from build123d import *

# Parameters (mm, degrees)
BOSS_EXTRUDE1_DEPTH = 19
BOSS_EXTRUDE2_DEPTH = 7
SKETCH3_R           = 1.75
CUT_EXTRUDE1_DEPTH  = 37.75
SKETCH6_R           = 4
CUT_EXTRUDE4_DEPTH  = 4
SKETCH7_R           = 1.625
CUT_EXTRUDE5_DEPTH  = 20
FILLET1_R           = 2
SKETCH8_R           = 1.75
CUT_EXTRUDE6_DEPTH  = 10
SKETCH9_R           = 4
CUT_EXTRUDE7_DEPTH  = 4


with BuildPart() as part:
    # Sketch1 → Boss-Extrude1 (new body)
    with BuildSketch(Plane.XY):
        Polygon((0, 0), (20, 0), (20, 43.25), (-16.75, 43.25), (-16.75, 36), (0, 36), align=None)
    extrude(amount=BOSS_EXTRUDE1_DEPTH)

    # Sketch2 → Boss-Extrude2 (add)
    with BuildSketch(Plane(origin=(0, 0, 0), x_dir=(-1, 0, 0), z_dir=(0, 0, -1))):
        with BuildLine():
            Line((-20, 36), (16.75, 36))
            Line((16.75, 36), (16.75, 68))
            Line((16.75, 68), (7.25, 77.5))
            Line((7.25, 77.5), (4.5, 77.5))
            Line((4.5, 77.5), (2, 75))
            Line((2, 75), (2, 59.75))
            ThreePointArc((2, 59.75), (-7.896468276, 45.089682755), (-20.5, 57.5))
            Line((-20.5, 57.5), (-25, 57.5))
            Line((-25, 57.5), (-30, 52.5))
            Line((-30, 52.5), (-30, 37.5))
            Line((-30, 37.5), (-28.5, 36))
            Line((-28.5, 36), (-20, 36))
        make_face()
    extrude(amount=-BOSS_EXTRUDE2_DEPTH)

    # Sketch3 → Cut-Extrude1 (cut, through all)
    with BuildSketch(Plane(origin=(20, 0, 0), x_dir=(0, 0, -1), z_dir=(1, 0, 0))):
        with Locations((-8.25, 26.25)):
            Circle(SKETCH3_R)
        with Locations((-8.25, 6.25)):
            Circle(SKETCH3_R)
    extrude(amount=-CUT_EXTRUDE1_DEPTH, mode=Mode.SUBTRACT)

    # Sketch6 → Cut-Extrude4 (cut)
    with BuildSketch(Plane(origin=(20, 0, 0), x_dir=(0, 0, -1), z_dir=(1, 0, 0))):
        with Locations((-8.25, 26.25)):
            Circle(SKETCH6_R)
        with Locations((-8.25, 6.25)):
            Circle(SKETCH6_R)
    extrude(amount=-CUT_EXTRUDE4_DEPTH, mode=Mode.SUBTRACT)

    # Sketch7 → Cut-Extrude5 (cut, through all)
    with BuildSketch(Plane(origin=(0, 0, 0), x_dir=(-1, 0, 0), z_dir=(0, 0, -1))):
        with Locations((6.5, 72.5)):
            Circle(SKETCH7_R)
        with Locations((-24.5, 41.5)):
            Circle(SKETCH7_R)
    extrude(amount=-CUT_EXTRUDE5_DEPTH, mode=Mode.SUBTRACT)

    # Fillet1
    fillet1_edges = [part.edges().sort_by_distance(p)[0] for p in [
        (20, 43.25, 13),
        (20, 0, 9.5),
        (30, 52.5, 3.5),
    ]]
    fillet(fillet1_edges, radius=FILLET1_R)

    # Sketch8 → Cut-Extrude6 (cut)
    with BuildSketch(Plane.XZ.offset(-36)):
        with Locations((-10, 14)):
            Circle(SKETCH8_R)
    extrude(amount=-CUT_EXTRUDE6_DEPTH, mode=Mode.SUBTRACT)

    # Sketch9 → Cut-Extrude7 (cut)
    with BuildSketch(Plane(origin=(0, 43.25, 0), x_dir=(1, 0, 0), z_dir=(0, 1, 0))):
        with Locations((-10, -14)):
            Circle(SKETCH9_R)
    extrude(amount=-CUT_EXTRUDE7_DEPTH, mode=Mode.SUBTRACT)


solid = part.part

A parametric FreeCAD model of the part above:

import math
import FreeCAD as App
import Part
import Sketcher

V = App.Vector
Q = App.Units.Quantity


def edges_at(feature, points):
    """Names of the edges that pass closest to the given points."""
    edges = feature.Shape.Edges
    near = lambda p: min(range(len(edges)), key=lambda i: edges[i].distToShape(Part.Vertex(*p))[0])
    return sorted({f"Edge{near(p) + 1}" for p in points})

doc = App.newDocument("Part")
body = doc.addObject("PartDesign::Body", "Body")

# Sketch on XY plane
sketch1 = doc.addObject("Sketcher::SketchObject", "Sketch")
body.addObject(sketch1)
sketch1.AttachmentSupport = (doc.XY_Plane, [""])
sketch1.MapMode = "FlatFace"
sketch1.addGeometry([
    Part.LineSegment(V(0, 0, 0), V(20, 0, 0)),  # 0
    Part.LineSegment(V(20, 0, 0), V(20, 43, 0)),  # 1
    Part.LineSegment(V(20, 43, 0), V(-17, 43, 0)),  # 2
    Part.LineSegment(V(-17, 43, 0), V(-17, 36, 0)),  # 3
    Part.LineSegment(V(-17, 36, 0), V(0, 36, 0)),  # 4
    Part.LineSegment(V(0, 36, 0), V(0, 0, 0)),  # 5
], False)
sketch1.addConstraint([
    Sketcher.Constraint("Coincident", 0, 2, 1, 1),
    Sketcher.Constraint("Coincident", 1, 2, 2, 1),
    Sketcher.Constraint("Coincident", 2, 2, 3, 1),
    Sketcher.Constraint("Coincident", 3, 2, 4, 1),
    Sketcher.Constraint("Coincident", 4, 2, 5, 1),
    Sketcher.Constraint("Coincident", 5, 2, 0, 1),
    Sketcher.Constraint("Horizontal", 0),
    Sketcher.Constraint("Vertical", 1),
    Sketcher.Constraint("Horizontal", 2),
    Sketcher.Constraint("Vertical", 3),
    Sketcher.Constraint("Horizontal", 4),
    Sketcher.Constraint("Vertical", 5),
    Sketcher.Constraint("Coincident", 5, 2, -1, 1),
    Sketcher.Constraint("DistanceX", 0, 1, 0, 2, Q("20 mm")),
    Sketcher.Constraint("DistanceY", 5, 2, 5, 1, Q("36 mm")),
    Sketcher.Constraint("DistanceX", 2, 2, 2, 1, Q("36.75 mm")),
    Sketcher.Constraint("DistanceY", 1, 1, 1, 2, Q("43.25 mm")),
])
pad1 = doc.addObject("PartDesign::Pad", "Pad")
body.addObject(pad1)
pad1.Profile = sketch1
pad1.Length = 19

# Sketch on XY plane
sketch2 = doc.addObject("Sketcher::SketchObject", "Sketch001")
body.addObject(sketch2)
sketch2.AttachmentSupport = (doc.XY_Plane, [""])
sketch2.MapMode = "FlatFace"
sketch2.addGeometry([
    Part.LineSegment(V(-16.8, 36, 0), V(-16.8, 68, 0)),  # 0
    Part.LineSegment(V(-16.8, 68, 0), V(-7.2, 77.5, 0)),  # 1
    Part.LineSegment(V(-7.2, 77.5, 0), V(-4.5, 77.5, 0)),  # 2
    Part.LineSegment(V(-4.5, 77.5, 0), V(-2, 75, 0)),  # 3
    Part.LineSegment(V(-2, 75, 0), V(-2, 59.8, 0)),  # 4
    Part.ArcOfCircle(Part.Circle(V(9, 56.5, 0), V(0, 0, 1), 11.5), math.radians(164), math.radians(365)),  # 5
    Part.LineSegment(V(20.5, 57.5, 0), V(25, 57.5, 0)),  # 6
    Part.LineSegment(V(25, 57.5, 0), V(30, 52.5, 0)),  # 7
    Part.LineSegment(V(30, 52.5, 0), V(30, 37.5, 0)),  # 8
    Part.LineSegment(V(30, 37.5, 0), V(28.5, 36, 0)),  # 9
    Part.LineSegment(V(28.5, 36, 0), V(-16.8, 36, 0)),  # 10
], False)
sketch2.addConstraint([
    Sketcher.Constraint("Coincident", 0, 2, 1, 1),
    Sketcher.Constraint("Coincident", 1, 2, 2, 1),
    Sketcher.Constraint("Coincident", 2, 2, 3, 1),
    Sketcher.Constraint("Coincident", 3, 2, 4, 1),
    Sketcher.Constraint("Coincident", 4, 2, 5, 1),
    Sketcher.Constraint("Coincident", 5, 2, 6, 1),
    Sketcher.Constraint("Coincident", 6, 2, 7, 1),
    Sketcher.Constraint("Coincident", 7, 2, 8, 1),
    Sketcher.Constraint("Coincident", 8, 2, 9, 1),
    Sketcher.Constraint("Coincident", 9, 2, 10, 1),
    Sketcher.Constraint("Coincident", 10, 2, 0, 1),
    Sketcher.Constraint("Vertical", 0),
    Sketcher.Constraint("Horizontal", 2),
    Sketcher.Constraint("Vertical", 4),
    Sketcher.Constraint("Horizontal", 6),
    Sketcher.Constraint("Vertical", 8),
    Sketcher.Constraint("Horizontal", 10),
    Sketcher.Constraint("Perpendicular", 1, 3),
    Sketcher.Constraint("Parallel", 3, 7),
    Sketcher.Constraint("Perpendicular", 7, 9),
    Sketcher.Constraint("Radius", 5, Q("11.5 mm")),
    Sketcher.Constraint("DistanceY", 0, 1, 0, 2, Q("32 mm")),
    Sketcher.Constraint("DistanceY", 8, 2, 8, 1, Q("15 mm")),
    Sketcher.Constraint("Angle", 1, Q("45 deg")),
    Sketcher.Constraint("DistanceX", 6, 1, 6, 2, Q("4.5 mm")),
    Sketcher.Constraint("DistanceY", -1, 1, 0, 2, Q("68 mm")),
    Sketcher.Constraint("DistanceX", 3, 2, -1, 1, Q("2 mm")),
    Sketcher.Constraint("DistanceY", -1, 1, 3, 2, Q("75 mm")),
    Sketcher.Constraint("DistanceX", -1, 1, 6, 2, Q("25 mm")),
    Sketcher.Constraint("DistanceX", -1, 1, 7, 2, Q("30 mm")),
    Sketcher.Constraint("DistanceX", 2, 2, 5, 2, Q("25 mm")),
    Sketcher.Constraint("DistanceY", 5, 2, 2, 2, Q("20 mm")),
    Sketcher.Constraint("DistanceX", 2, 1, 2, 2, Q("2.75 mm")),
    Sketcher.Constraint("DistanceY", 4, 2, 4, 1, Q("15.25 mm")),
])
pad2 = doc.addObject("PartDesign::Pad", "Pad001")
body.addObject(pad2)
pad2.Profile = sketch2
pad2.Length = 7

# Sketch on YZ plane
sketch3 = doc.addObject("Sketcher::SketchObject", "Sketch002")
body.addObject(sketch3)
sketch3.AttachmentSupport = (doc.YZ_Plane, [""])
sketch3.MapMode = "FlatFace"
sketch3.AttachmentOffset = App.Placement(V(0, 0, 20), App.Rotation())
sketch3.addGeometry([
    Part.Circle(V(26.2, 8.2, 0), V(0, 0, 1), 1.8),
    Part.Circle(V(6.2, 8.2, 0), V(0, 0, 1), 1.8),
], False)
sketch3.addConstraint([
    Sketcher.Constraint("Equal", 0, 1),
    Sketcher.Constraint("Horizontal", 0, 3, 1, 3),
    Sketcher.Constraint("Diameter", 0, Q("3.5 mm")),
    Sketcher.Constraint("DistanceX", 1, 3, 0, 3, Q("20 mm")),
    Sketcher.Constraint("DistanceX", -1, 1, 0, 3, Q("26.25 mm")),
    Sketcher.Constraint("DistanceY", -1, 1, 0, 3, Q("8.25 mm")),
])
pocket1 = doc.addObject("PartDesign::Pocket", "Pocket")
body.addObject(pocket1)
pocket1.Profile = sketch3
pocket1.Type = "ThroughAll"

# Sketch on YZ plane
sketch4 = doc.addObject("Sketcher::SketchObject", "Sketch003")
body.addObject(sketch4)
sketch4.AttachmentSupport = (doc.YZ_Plane, [""])
sketch4.MapMode = "FlatFace"
sketch4.AttachmentOffset = App.Placement(V(0, 0, 20), App.Rotation())
sketch4.addGeometry([
    Part.Circle(V(26.2, 8.2, 0), V(0, 0, 1), 4),
    Part.Circle(V(6.2, 8.2, 0), V(0, 0, 1), 4),
], False)
sketch4.addConstraint([
    Sketcher.Constraint("Equal", 0, 1),
    Sketcher.Constraint("Horizontal", 0, 3, 1, 3),
    Sketcher.Constraint("Diameter", 0, Q("8 mm")),
    Sketcher.Constraint("DistanceX", 1, 3, 0, 3, Q("20 mm")),
    Sketcher.Constraint("DistanceX", -1, 1, 0, 3, Q("26.25 mm")),
    Sketcher.Constraint("DistanceY", -1, 1, 0, 3, Q("8.25 mm")),
])
pocket2 = doc.addObject("PartDesign::Pocket", "Pocket001")
body.addObject(pocket2)
pocket2.Profile = sketch4
pocket2.Length = 4

# Sketch on XY plane
sketch5 = doc.addObject("Sketcher::SketchObject", "Sketch004")
body.addObject(sketch5)
sketch5.AttachmentSupport = (doc.XY_Plane, [""])
sketch5.MapMode = "FlatFace"
sketch5.addGeometry([
    Part.Circle(V(-6.5, 72.5, 0), V(0, 0, 1), 1.6),
    Part.Circle(V(24.5, 41.5, 0), V(0, 0, 1), 1.6),
], False)
sketch5.addConstraint([
    Sketcher.Constraint("Equal", 0, 1),
    Sketcher.Constraint("Diameter", 0, Q("3.25 mm")),
    Sketcher.Constraint("DistanceX", 0, 3, 1, 3, Q("31 mm")),
    Sketcher.Constraint("DistanceY", 1, 3, 0, 3, Q("31 mm")),
    Sketcher.Constraint("DistanceX", 0, 3, -1, 1, Q("6.5 mm")),
    Sketcher.Constraint("DistanceY", -1, 1, 0, 3, Q("72.5 mm")),
])
pocket3 = doc.addObject("PartDesign::Pocket", "Pocket002")
body.addObject(pocket3)
pocket3.Profile = sketch5
pocket3.Type = "ThroughAll"
pocket3.Reversed = True
doc.recompute()

fillet = doc.addObject("PartDesign::Fillet", "Fillet")
body.addObject(fillet)
fillet.Base = (pocket3, edges_at(pocket3, [(20, 43.25, 13), (20, 0, 9.5), (30, 52.5, 3.5)]))
fillet.Radius = 2

# Sketch on XZ plane
sketch6 = doc.addObject("Sketcher::SketchObject", "Sketch005")
body.addObject(sketch6)
sketch6.AttachmentSupport = (doc.XZ_Plane, [""])
sketch6.MapMode = "FlatFace"
sketch6.AttachmentOffset = App.Placement(V(0, 0, -36), App.Rotation())
sketch6.addGeometry(Part.Circle(V(-10, 14, 0), V(0, 0, 1), 1.8), False)
sketch6.addConstraint([
    Sketcher.Constraint("Diameter", 0, Q("3.5 mm")),
    Sketcher.Constraint("DistanceX", 0, 3, -1, 1, Q("10 mm")),
    Sketcher.Constraint("DistanceY", -1, 1, 0, 3, Q("14 mm")),
])
pocket4 = doc.addObject("PartDesign::Pocket", "Pocket003")
body.addObject(pocket4)
pocket4.Profile = sketch6
pocket4.Length = 10

# Sketch on XZ plane
sketch7 = doc.addObject("Sketcher::SketchObject", "Sketch006")
body.addObject(sketch7)
sketch7.AttachmentSupport = (doc.XZ_Plane, [""])
sketch7.MapMode = "FlatFace"
sketch7.AttachmentOffset = App.Placement(V(0, 0, -43.25), App.Rotation())
sketch7.addGeometry(Part.Circle(V(-10, 14, 0), V(0, 0, 1), 4), False)
sketch7.addConstraint([
    Sketcher.Constraint("Diameter", 0, Q("8 mm")),
    Sketcher.Constraint("DistanceX", 0, 3, -1, 1, Q("10 mm")),
    Sketcher.Constraint("DistanceY", -1, 1, 0, 3, Q("14 mm")),
])
pocket5 = doc.addObject("PartDesign::Pocket", "Pocket004")
body.addObject(pocket5)
pocket5.Profile = sketch7
pocket5.Length = 4
pocket5.Reversed = True

doc.recompute()
